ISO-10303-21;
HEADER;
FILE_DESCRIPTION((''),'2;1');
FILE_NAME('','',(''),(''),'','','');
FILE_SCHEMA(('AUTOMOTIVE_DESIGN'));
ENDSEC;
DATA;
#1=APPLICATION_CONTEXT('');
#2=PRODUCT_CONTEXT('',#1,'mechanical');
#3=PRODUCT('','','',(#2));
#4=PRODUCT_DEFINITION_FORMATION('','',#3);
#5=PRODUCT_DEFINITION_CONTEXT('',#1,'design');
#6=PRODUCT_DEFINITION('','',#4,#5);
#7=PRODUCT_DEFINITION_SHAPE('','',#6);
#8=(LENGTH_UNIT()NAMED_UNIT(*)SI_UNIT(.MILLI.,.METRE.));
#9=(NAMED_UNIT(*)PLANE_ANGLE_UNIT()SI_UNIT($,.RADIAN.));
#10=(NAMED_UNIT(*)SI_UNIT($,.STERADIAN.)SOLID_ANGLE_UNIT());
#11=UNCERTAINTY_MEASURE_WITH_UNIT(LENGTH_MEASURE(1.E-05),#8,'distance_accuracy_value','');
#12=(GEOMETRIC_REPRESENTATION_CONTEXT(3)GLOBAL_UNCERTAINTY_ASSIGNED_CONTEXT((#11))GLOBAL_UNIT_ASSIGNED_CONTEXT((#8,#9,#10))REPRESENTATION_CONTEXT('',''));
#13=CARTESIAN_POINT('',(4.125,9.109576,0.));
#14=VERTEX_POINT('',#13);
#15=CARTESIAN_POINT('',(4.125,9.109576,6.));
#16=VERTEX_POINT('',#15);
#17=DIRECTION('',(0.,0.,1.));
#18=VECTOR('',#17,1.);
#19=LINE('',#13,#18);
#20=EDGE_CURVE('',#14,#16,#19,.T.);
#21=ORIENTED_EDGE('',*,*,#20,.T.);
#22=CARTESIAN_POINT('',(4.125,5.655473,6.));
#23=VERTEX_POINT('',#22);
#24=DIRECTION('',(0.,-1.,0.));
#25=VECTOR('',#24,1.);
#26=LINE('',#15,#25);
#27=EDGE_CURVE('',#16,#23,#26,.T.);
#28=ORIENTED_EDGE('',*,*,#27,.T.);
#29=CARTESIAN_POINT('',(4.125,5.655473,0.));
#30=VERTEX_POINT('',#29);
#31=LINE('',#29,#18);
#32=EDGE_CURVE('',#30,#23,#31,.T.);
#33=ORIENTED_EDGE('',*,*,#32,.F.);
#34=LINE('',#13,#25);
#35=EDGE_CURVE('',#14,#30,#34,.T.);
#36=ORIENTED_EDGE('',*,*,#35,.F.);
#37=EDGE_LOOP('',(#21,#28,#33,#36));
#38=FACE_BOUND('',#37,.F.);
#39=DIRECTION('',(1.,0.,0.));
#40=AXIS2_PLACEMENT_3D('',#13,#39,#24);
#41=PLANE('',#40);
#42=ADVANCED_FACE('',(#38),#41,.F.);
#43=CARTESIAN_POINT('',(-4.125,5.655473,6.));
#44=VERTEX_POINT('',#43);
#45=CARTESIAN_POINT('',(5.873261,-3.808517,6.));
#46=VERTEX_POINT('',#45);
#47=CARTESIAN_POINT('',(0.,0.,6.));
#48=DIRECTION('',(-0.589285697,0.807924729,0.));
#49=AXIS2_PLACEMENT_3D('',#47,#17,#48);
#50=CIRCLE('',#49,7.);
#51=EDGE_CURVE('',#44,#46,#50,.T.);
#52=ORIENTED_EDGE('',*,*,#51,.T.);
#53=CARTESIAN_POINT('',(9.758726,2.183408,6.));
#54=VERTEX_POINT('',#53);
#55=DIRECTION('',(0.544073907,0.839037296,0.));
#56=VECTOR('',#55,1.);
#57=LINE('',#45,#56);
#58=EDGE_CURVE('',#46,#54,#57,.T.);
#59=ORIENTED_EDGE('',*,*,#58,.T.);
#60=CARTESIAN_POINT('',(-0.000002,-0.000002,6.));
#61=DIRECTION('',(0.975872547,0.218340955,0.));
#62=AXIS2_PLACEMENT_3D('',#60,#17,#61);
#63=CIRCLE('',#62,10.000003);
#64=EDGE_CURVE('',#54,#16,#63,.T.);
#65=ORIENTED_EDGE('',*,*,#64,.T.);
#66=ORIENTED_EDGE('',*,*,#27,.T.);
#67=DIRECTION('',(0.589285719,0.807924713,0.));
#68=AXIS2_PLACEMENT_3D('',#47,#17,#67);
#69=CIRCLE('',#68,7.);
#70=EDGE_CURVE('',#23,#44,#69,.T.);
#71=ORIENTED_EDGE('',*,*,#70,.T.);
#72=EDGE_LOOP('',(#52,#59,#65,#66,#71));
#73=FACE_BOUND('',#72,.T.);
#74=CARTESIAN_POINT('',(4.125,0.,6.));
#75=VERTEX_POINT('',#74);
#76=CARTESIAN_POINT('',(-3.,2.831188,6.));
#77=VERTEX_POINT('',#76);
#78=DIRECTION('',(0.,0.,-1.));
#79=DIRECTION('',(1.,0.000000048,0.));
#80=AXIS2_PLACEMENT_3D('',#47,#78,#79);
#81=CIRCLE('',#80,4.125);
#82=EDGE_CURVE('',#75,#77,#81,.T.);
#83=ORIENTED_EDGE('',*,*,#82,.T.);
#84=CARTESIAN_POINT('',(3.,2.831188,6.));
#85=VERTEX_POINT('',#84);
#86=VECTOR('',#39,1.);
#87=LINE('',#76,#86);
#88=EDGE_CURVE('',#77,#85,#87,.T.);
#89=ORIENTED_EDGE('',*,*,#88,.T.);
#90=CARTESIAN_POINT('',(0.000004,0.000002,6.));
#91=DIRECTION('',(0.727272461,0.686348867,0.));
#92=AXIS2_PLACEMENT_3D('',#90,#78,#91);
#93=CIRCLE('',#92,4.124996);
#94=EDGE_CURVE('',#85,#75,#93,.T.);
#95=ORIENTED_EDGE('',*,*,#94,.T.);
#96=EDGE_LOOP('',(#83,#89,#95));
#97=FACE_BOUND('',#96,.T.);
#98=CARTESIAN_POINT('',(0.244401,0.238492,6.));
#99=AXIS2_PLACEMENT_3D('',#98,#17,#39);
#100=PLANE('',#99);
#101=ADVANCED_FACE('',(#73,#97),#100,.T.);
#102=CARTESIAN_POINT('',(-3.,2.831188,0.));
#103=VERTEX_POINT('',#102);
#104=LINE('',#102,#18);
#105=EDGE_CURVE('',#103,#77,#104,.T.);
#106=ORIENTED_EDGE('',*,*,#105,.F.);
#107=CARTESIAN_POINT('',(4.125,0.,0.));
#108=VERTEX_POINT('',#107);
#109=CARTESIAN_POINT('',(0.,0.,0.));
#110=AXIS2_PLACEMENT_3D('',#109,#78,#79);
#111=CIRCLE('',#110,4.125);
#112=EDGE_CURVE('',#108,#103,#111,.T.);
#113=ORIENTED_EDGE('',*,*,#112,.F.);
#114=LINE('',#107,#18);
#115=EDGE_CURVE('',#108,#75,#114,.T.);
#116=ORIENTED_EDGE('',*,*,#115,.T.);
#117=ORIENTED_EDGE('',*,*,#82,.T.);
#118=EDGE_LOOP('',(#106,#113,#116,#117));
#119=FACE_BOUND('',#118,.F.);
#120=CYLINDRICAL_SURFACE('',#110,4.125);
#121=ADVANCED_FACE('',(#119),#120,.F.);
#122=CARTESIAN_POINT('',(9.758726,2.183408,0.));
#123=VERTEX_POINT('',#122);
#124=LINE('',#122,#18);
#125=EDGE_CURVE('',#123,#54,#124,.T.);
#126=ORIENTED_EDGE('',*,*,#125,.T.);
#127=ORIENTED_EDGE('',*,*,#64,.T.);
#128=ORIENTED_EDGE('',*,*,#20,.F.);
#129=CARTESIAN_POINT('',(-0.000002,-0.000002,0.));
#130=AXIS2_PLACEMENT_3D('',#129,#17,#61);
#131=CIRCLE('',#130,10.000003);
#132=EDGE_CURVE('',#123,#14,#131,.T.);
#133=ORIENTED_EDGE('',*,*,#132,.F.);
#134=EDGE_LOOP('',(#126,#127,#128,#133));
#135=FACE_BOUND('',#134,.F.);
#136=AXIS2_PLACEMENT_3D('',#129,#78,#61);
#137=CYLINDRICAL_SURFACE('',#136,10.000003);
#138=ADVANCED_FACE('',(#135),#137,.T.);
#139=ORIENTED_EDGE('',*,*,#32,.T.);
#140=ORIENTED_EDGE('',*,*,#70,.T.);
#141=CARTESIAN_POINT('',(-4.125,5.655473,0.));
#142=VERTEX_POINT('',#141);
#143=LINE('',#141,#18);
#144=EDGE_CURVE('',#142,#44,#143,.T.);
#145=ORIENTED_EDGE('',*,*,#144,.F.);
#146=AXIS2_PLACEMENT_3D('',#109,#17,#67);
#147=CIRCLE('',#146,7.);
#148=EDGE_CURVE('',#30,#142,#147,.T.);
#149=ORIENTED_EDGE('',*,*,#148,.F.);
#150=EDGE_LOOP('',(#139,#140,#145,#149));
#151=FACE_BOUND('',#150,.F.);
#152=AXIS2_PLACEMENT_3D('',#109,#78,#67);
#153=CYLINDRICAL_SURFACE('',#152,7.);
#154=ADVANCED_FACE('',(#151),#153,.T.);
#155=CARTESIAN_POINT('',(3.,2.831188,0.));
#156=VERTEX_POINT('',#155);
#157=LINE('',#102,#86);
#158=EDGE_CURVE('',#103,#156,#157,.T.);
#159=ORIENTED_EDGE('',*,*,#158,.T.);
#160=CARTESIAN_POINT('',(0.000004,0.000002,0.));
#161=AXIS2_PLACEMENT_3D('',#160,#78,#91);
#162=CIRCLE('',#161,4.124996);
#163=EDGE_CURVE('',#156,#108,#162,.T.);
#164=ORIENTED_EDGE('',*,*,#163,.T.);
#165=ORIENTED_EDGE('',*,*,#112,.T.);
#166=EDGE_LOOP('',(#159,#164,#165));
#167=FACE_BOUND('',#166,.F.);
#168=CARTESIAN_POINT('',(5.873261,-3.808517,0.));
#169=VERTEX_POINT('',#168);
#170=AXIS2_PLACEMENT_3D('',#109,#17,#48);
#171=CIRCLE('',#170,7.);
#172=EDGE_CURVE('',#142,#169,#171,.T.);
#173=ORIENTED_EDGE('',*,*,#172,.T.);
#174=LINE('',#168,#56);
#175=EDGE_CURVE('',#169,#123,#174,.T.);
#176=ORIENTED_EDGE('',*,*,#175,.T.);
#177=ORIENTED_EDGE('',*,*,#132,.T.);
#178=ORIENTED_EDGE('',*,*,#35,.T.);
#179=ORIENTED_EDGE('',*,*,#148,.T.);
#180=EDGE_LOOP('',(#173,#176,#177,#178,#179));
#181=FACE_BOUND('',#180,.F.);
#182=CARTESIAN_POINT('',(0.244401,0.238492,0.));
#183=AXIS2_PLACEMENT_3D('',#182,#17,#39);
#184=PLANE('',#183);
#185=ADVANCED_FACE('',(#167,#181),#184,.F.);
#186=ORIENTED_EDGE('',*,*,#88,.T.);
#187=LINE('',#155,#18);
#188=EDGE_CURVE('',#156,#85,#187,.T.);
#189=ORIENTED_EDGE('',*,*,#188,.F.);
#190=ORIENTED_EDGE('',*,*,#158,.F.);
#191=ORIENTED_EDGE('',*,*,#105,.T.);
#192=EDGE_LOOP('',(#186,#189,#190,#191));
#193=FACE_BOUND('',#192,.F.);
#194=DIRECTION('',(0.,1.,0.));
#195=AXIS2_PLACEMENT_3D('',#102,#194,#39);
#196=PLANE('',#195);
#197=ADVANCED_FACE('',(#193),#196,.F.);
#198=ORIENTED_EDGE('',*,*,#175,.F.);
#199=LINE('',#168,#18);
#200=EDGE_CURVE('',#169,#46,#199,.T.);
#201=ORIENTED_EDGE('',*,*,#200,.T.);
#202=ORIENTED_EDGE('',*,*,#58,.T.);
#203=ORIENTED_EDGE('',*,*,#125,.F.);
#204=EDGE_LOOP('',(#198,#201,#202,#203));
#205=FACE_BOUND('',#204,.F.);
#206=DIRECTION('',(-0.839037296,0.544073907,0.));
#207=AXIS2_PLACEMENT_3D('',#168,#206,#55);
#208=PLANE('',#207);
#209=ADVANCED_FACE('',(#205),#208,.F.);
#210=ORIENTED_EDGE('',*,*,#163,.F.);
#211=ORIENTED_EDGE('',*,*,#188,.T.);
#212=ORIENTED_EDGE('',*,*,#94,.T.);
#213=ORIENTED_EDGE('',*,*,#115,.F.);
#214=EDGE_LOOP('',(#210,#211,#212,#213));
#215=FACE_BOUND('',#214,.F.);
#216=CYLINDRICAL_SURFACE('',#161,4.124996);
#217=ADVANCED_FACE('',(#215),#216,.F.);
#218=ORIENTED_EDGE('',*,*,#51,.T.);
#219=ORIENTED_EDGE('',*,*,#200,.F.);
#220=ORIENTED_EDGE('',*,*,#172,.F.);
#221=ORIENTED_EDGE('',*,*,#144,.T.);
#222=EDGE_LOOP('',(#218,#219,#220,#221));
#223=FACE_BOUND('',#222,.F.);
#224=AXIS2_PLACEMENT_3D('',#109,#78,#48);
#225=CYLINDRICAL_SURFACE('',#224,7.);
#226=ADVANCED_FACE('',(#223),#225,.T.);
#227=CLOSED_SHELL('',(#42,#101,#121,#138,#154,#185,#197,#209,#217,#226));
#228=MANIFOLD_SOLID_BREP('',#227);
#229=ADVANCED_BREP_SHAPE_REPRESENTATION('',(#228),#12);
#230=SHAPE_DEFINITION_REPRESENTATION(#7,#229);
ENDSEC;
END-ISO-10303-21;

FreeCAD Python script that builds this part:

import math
import FreeCAD as App
import Part
import Sketcher
from FreeCAD import Vector
Q = App.Units.Quantity

doc = App.newDocument("Part")
body = doc.addObject("PartDesign::Body", "Body")

sketch1 = doc.addObject("Sketcher::SketchObject", "Sketch")
body.addObject(sketch1)
sketch1.AttachmentSupport = (doc.XY_Plane, [""])
sketch1.MapMode = "FlatFace"
sketch1.addGeometry(Part.ArcOfCircle(Part.Circle(Vector(0, 0, 0), Vector(0, 0, 1), 7), math.radians(126.106335), math.radians(327.038603)), False)
sketch1.addGeometry(Part.LineSegment(Vector(5.873261, -3.808517, 0), Vector(9.758726, 2.183408, 0)), False)
sketch1.addGeometry(Part.ArcOfCircle(Part.Circle(Vector(-0.000002, -0.000002, 0), Vector(0, 0, 1), 10.000003), math.radians(12.611608), math.radians(65.638015)), False)
sketch1.addGeometry(Part.LineSegment(Vector(4.125, 9.109576, 0), Vector(4.125, 5.655473, 0)), False)
sketch1.addGeometry(Part.ArcOfCircle(Part.Circle(Vector(0, 0, 0), Vector(0, 0, 1), 7), math.radians(53.893663), math.radians(126.106337)), False)
sketch1.addGeometry(Part.ArcOfCircle(Part.Circle(Vector(0, 0, 0), Vector(0, 0, 1), 4.125), math.radians(136.658238), math.radians(360.000003)), False)
sketch1.addGeometry(Part.LineSegment(Vector(-3, 2.831188, 0), Vector(3, 2.831188, 0)), False)
sketch1.addGeometry(Part.ArcOfCircle(Part.Circle(Vector(0.000004, 0.000002, 0), Vector(0, 0, 1), 4.124996), math.radians(-0.000023), math.radians(43.34178)), False)
sketch1.addConstraint(Sketcher.Constraint("Tangent", 0, 2, 1, 1))
sketch1.addConstraint(Sketcher.Constraint("Coincident", 1, 2, 2, 1))
sketch1.addConstraint(Sketcher.Constraint("Coincident", 2, 2, 3, 1))
sketch1.addConstraint(Sketcher.Constraint("Coincident", 3, 2, 4, 1))
sketch1.addConstraint(Sketcher.Constraint("Tangent", 4, 2, 0, 1))
sketch1.addConstraint(Sketcher.Constraint("Coincident", 5, 1, 6, 1))
sketch1.addConstraint(Sketcher.Constraint("Coincident", 6, 2, 7, 2))
sketch1.addConstraint(Sketcher.Constraint("Tangent", 7, 1, 5, 2))
sketch1.addConstraint(Sketcher.Constraint("Vertical", 3))
sketch1.addConstraint(Sketcher.Constraint("Horizontal", 6))
sketch1.addConstraint(Sketcher.Constraint("Coincident", 0, 3, -1, 1))
sketch1.addConstraint(Sketcher.Constraint("Coincident", 2, 3, -1, 1))
sketch1.addConstraint(Sketcher.Constraint("Coincident", 5, 3, -1, 1))
sketch1.addConstraint(Sketcher.Constraint("Equal", 0, 4))
sketch1.addConstraint(Sketcher.Constraint("PointOnObject", 7, 1, -1))
sketch1.addConstraint(Sketcher.Constraint("Horizontal", 3, 2, 4, 2))
sketch1.addConstraint(Sketcher.Constraint("Vertical", 3, 2, 7, 1))
sketch1.addConstraint(Sketcher.Constraint("Radius", 0, Q("7 mm")))
sketch1.addConstraint(Sketcher.Constraint("DistanceX", 6, 1, 6, 2, Q("6 mm")))
sketch1.addConstraint(Sketcher.Constraint("DistanceX", 5, 1, -1, 1, Q("3 mm")))
sketch1.addConstraint(Sketcher.Constraint("Radius", 5, Q("4.125 mm")))
sketch1.addConstraint(Sketcher.Constraint("Radius", 2, Q("10.000003 mm")))
sketch1.addConstraint(Sketcher.Constraint("DistanceX", -1, 1, 0, 2, Q("5.873261 mm")))
pad1 = doc.addObject("PartDesign::Pad", "Pad")
body.addObject(pad1)
pad1.Profile = sketch1
pad1.Length = 6

doc.recompute()
